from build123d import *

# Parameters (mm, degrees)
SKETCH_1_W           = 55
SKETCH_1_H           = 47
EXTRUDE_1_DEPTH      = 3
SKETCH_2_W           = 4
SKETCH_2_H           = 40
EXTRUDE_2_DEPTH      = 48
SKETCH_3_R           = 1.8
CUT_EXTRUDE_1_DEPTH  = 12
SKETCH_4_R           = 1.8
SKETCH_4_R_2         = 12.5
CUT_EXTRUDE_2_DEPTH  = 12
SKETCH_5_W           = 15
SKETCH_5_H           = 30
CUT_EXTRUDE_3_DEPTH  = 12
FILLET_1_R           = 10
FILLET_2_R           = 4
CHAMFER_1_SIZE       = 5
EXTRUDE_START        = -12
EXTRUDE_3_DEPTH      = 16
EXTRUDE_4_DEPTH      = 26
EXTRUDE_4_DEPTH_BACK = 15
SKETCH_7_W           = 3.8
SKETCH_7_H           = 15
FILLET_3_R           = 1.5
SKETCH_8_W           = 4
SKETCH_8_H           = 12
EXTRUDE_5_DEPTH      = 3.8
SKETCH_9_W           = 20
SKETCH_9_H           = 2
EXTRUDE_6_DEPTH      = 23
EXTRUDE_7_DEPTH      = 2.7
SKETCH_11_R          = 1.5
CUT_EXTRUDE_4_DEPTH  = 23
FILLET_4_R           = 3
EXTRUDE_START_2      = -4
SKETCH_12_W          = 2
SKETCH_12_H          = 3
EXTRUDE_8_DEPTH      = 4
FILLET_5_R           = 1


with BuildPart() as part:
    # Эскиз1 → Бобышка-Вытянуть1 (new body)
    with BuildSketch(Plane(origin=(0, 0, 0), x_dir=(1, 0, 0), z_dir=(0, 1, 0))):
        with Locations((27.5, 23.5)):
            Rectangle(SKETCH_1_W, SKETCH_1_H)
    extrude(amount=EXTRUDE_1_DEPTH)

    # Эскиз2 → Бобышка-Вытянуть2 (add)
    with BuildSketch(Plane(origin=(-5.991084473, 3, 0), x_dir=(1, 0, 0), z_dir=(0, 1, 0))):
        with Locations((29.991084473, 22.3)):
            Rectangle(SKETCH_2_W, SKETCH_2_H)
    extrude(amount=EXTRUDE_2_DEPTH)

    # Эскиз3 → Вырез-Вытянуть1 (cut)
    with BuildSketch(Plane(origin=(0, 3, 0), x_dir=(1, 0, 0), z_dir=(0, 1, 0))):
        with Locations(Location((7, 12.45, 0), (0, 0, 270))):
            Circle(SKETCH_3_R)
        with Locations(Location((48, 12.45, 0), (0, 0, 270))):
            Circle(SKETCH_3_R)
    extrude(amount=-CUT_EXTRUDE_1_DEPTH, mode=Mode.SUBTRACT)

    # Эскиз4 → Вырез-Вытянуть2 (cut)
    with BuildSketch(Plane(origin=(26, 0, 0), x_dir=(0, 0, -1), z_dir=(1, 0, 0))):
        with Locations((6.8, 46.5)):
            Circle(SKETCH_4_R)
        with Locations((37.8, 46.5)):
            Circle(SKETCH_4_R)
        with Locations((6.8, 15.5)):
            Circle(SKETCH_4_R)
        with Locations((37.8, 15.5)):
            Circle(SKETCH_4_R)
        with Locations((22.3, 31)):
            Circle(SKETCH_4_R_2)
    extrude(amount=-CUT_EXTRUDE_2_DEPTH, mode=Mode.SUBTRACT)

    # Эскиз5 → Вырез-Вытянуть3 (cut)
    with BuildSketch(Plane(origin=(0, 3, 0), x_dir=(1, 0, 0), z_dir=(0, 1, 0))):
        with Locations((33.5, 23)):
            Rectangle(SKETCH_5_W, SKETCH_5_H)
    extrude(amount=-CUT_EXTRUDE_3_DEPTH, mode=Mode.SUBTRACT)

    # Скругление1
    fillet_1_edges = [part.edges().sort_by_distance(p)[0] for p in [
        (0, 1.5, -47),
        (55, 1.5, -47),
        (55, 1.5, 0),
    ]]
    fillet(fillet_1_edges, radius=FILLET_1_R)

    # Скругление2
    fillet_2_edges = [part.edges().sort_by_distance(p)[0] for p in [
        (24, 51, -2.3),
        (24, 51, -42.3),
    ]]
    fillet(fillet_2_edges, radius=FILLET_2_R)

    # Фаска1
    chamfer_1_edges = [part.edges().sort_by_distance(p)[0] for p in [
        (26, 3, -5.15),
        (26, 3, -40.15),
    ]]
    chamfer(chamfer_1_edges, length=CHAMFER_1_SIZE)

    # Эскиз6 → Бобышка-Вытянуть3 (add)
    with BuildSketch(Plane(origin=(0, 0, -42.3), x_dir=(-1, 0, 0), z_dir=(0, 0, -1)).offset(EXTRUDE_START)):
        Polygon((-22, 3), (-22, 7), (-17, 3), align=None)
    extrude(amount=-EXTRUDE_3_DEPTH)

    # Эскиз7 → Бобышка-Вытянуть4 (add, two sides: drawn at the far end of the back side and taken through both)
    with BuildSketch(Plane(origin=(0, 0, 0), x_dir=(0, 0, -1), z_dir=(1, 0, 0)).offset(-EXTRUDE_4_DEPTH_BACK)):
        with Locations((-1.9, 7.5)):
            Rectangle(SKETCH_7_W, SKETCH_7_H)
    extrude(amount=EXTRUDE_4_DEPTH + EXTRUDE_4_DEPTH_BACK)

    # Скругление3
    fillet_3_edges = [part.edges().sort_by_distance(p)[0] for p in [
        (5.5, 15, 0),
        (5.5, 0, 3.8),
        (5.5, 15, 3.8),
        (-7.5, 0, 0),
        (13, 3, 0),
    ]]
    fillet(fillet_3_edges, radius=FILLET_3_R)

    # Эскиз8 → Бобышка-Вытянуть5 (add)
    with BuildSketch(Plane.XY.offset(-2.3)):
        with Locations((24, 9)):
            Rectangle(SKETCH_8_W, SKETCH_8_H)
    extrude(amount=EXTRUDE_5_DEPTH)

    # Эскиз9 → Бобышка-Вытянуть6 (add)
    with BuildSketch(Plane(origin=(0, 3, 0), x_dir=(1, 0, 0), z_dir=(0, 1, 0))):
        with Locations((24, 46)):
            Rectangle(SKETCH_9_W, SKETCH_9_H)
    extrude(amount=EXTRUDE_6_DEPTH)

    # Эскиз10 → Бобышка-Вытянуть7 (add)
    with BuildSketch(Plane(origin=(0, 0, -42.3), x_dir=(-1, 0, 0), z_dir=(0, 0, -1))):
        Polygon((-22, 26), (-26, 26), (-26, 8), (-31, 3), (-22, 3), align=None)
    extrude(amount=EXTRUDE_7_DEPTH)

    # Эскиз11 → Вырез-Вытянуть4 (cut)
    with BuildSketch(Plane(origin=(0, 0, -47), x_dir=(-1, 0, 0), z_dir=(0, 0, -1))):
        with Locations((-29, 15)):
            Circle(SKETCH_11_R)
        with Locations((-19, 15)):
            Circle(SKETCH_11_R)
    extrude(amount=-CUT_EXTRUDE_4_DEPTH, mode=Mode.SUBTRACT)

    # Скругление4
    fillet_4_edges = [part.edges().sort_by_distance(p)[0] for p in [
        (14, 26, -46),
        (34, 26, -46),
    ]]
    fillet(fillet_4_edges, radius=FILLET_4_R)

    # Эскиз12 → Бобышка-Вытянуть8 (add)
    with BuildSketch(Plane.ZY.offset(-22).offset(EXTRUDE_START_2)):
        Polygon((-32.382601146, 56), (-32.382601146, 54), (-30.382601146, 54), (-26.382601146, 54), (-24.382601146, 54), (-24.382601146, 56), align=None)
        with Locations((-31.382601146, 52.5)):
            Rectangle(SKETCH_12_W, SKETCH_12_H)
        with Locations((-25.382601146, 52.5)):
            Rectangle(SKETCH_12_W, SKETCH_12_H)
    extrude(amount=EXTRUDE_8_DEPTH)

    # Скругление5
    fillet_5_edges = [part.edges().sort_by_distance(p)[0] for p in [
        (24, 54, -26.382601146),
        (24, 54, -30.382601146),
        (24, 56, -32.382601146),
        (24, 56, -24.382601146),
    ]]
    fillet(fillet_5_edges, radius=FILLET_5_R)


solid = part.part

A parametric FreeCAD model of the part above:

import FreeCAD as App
import Part
import Sketcher


def edges_at(feature, points):
    """Names of the edges that pass closest to the given points."""
    edges = feature.Shape.Edges
    near = lambda p: min(range(len(edges)), key=lambda i: edges[i].distToShape(Part.Vertex(*p))[0])
    return sorted({f"Edge{near(p) + 1}" for p in points})


def add_polygon(sketch, points):
    """Adds a closed chain of lines whose ends are joined by coincident constraints."""
    first, n = sketch.GeometryCount, len(points)
    for a, b in zip(points, points[1:] + points[:1]):
        sketch.addGeometry(Part.LineSegment(App.Vector(*a, 0), App.Vector(*b, 0)), False)
    for i in range(n):
        sketch.addConstraint(Sketcher.Constraint("Coincident", first + i, 2, first + (i + 1) % n, 1))

doc = App.newDocument("Part")
body = doc.addObject("PartDesign::Body", "Body")

# Sketch on XZ plane
sketch1 = doc.addObject("Sketcher::SketchObject", "Sketch")
body.addObject(sketch1)
sketch1.AttachmentSupport = (doc.XZ_Plane, [""])
sketch1.MapMode = "FlatFace"
add_polygon(sketch1, [(0, -47), (0, 0), (55, 0), (55, -47)])  # lines 0-3
sketch1.addConstraint([
    Sketcher.Constraint("Vertical", 0),
    Sketcher.Constraint("Horizontal", 1),
    Sketcher.Constraint("Vertical", 2),
    Sketcher.Constraint("Horizontal", 3),
    Sketcher.Constraint("Coincident", 0, 2, -1, 1),
    Sketcher.Constraint("DistanceX", 1, 1, 1, 2, 55.0),
    Sketcher.Constraint("DistanceY", 0, 1, 0, 2, 47.0),
])
pad1 = doc.addObject("PartDesign::Pad", "Pad")
body.addObject(pad1)
pad1.Profile = sketch1
pad1.Length = 3
pad1.Reversed = True

# Sketch on XZ plane
sketch2 = doc.addObject("Sketcher::SketchObject", "Sketch001")
body.addObject(sketch2)
sketch2.AttachmentSupport = (doc.XZ_Plane, [""])
sketch2.MapMode = "FlatFace"
sketch2.AttachmentOffset = App.Placement(App.Vector(0, 0, -3), App.Rotation())
add_polygon(sketch2, [(22, -42.3), (22, -2.3), (26, -2.3), (26, -42.3)])  # lines 0-3
sketch2.addConstraint([
    Sketcher.Constraint("Vertical", 0),
    Sketcher.Constraint("Horizontal", 1),
    Sketcher.Constraint("Vertical", 2),
    Sketcher.Constraint("Horizontal", 3),
    Sketcher.Constraint("DistanceX", 1, 1, 1, 2, 4.0),
    Sketcher.Constraint("DistanceY", 0, 1, 0, 2, 40.0),
    Sketcher.Constraint("DistanceX", -1, 1, 0, 2, 22.0),
    Sketcher.Constraint("DistanceY", 0, 2, -1, 1, 2.3),
])
pad2 = doc.addObject("PartDesign::Pad", "Pad001")
body.addObject(pad2)
pad2.Profile = sketch2
pad2.Length = 48
pad2.Reversed = True

# Sketch on XZ plane
sketch3 = doc.addObject("Sketcher::SketchObject", "Sketch002")
body.addObject(sketch3)
sketch3.AttachmentSupport = (doc.XZ_Plane, [""])
sketch3.MapMode = "FlatFace"
sketch3.AttachmentOffset = App.Placement(App.Vector(0, 0, -3), App.Rotation())
sketch3.addGeometry([
    Part.Circle(App.Vector(7, -12.4, 0), App.Vector(0, 0, 1), 1.8),
    Part.Circle(App.Vector(48, -12.4, 0), App.Vector(0, 0, 1), 1.8),
], False)
sketch3.addConstraint([
    Sketcher.Constraint("Equal", 0, 1),
    Sketcher.Constraint("Horizontal", 0, 3, 1, 3),
    Sketcher.Constraint("Diameter", 0, 3.6),
    Sketcher.Constraint("DistanceX", -1, 1, 0, 3, 7.0),
    Sketcher.Constraint("DistanceX", -1, 1, 1, 3, 48.0),
    Sketcher.Constraint("DistanceY", 0, 3, -1, 1, 12.45),
])
pocket1 = doc.addObject("PartDesign::Pocket", "Pocket")
body.addObject(pocket1)
pocket1.Profile = sketch3
pocket1.Length = 12
pocket1.Reversed = True

# Sketch on YZ plane
sketch4 = doc.addObject("Sketcher::SketchObject", "Sketch003")
body.addObject(sketch4)
sketch4.AttachmentSupport = (doc.YZ_Plane, [""])
sketch4.MapMode = "FlatFace"
sketch4.AttachmentOffset = App.Placement(App.Vector(0, 0, 26), App.Rotation())
sketch4.addGeometry([
    Part.Circle(App.Vector(46.5, -6.8, 0), App.Vector(0, 0, 1), 1.8),  # 0
    Part.Circle(App.Vector(46.5, -37.8, 0), App.Vector(0, 0, 1), 1.8),  # 1
    Part.Circle(App.Vector(15.5, -6.8, 0), App.Vector(0, 0, 1), 1.8),  # 2
    Part.Circle(App.Vector(15.5, -37.8, 0), App.Vector(0, 0, 1), 1.8),  # 3
    Part.Circle(App.Vector(31, -22.3, 0), App.Vector(0, 0, 1), 12.5),  # 4
], False)
sketch4.addConstraint([
    Sketcher.Constraint("Equal", 0, 1),
    Sketcher.Constraint("Equal", 1, 2),
    Sketcher.Constraint("Equal", 2, 3),
    Sketcher.Constraint("Horizontal", 0, 3, 2, 3),
    Sketcher.Constraint("Horizontal", 1, 3, 3, 3),
    Sketcher.Constraint("Vertical", 0, 3, 1, 3),
    Sketcher.Constraint("Vertical", 2, 3, 3, 3),
    Sketcher.Constraint("Diameter", 4, 25.0),
    Sketcher.Constraint("Diameter", 0, 3.6),
    Sketcher.Constraint("DistanceX", -1, 1, 4, 3, 31.0),
    Sketcher.Constraint("DistanceY", 1, 3, 0, 3, 31.0),
    Sketcher.Constraint("DistanceX", 2, 3, 0, 3, 31.0),
    Sketcher.Constraint("DistanceX", -1, 1, 0, 3, 46.5),
    Sketcher.Constraint("DistanceY", 0, 3, -1, 1, 6.8),
    Sketcher.Constraint("DistanceY", 4, 3, -1, 1, 22.3),
])
pocket2 = doc.addObject("PartDesign::Pocket", "Pocket001")
body.addObject(pocket2)
pocket2.Profile = sketch4
pocket2.Length = 12

# Sketch on XZ plane
sketch5 = doc.addObject("Sketcher::SketchObject", "Sketch004")
body.addObject(sketch5)
sketch5.AttachmentSupport = (doc.XZ_Plane, [""])
sketch5.MapMode = "FlatFace"
sketch5.AttachmentOffset = App.Placement(App.Vector(0, 0, -3), App.Rotation())
add_polygon(sketch5, [(26, -38), (26, -8), (41, -8), (41, -38)])  # lines 0-3
sketch5.addConstraint([
    Sketcher.Constraint("Vertical", 0),
    Sketcher.Constraint("Horizontal", 1),
    Sketcher.Constraint("Vertical", 2),
    Sketcher.Constraint("Horizontal", 3),
    Sketcher.Constraint("DistanceX", 1, 1, 1, 2, 15.0),
    Sketcher.Constraint("DistanceY", 0, 1, 0, 2, 30.0),
    Sketcher.Constraint("DistanceX", -1, 1, 0, 2, 26.0),
    Sketcher.Constraint("DistanceY", 0, 2, -1, 1, 8.0),
])
pocket3 = doc.addObject("PartDesign::Pocket", "Pocket002")
body.addObject(pocket3)
pocket3.Profile = sketch5
pocket3.Length = 12
pocket3.Reversed = True
doc.recompute()

fillet = doc.addObject("PartDesign::Fillet", "Fillet")
body.addObject(fillet)
fillet.Base = (pocket3, edges_at(pocket3, [(0, 1.5, -47), (55, 1.5, -47), (55, 1.5, 0)]))
fillet.Radius = 10
doc.recompute()

fillet2 = doc.addObject("PartDesign::Fillet", "Fillet001")
body.addObject(fillet2)
fillet2.Base = (fillet, edges_at(fillet, [(24, 51, -2.3), (24, 51, -42.3)]))
fillet2.Radius = 4
doc.recompute()

chamfer = doc.addObject("PartDesign::Chamfer", "Chamfer")
body.addObject(chamfer)
chamfer.Base = (fillet2, edges_at(fillet2, [(26, 3, -5.15), (26, 3, -40.15)]))
chamfer.Size = 5

# Sketch on XY plane
sketch6 = doc.addObject("Sketcher::SketchObject", "Sketch005")
body.addObject(sketch6)
sketch6.AttachmentSupport = (doc.XY_Plane, [""])
sketch6.MapMode = "FlatFace"
sketch6.AttachmentOffset = App.Placement(App.Vector(0, 0, -30.3), App.Rotation())
add_polygon(sketch6, [(22, 7), (22, 3), (17, 3)])  # lines 0-2
sketch6.addConstraint([
    Sketcher.Constraint("Vertical", 0),
    Sketcher.Constraint("Horizontal", 1),
    Sketcher.Constraint("DistanceX", 1, 2, 1, 1, 5.0),
    Sketcher.Constraint("DistanceY", 0, 2, 0, 1, 4.0),
    Sketcher.Constraint("DistanceX", -1, 1, 0, 2, 22.0),
    Sketcher.Constraint("DistanceY", -1, 1, 0, 2, 3.0),
])
pad3 = doc.addObject("PartDesign::Pad", "Pad002")
body.addObject(pad3)
pad3.Profile = sketch6
pad3.Length = 16

# Sketch on YZ plane
sketch7 = doc.addObject("Sketcher::SketchObject", "Sketch006")
body.addObject(sketch7)
sketch7.AttachmentSupport = (doc.YZ_Plane, [""])
sketch7.MapMode = "FlatFace"
add_polygon(sketch7, [(15, 3.8), (0, 3.8), (0, 0), (15, 0)])  # lines 0-3
sketch7.addConstraint([
    Sketcher.Constraint("Horizontal", 0),
    Sketcher.Constraint("Vertical", 1),
    Sketcher.Constraint("Horizontal", 2),
    Sketcher.Constraint("Vertical", 3),
    Sketcher.Constraint("Coincident", 1, 2, -1, 1),
    Sketcher.Constraint("DistanceX", 0, 2, 0, 1, 15.0),
    Sketcher.Constraint("DistanceY", 1, 2, 1, 1, 3.8),
])
pad4 = doc.addObject("PartDesign::Pad", "Pad003")
body.addObject(pad4)
pad4.Profile = sketch7
pad4.Type = "TwoLengths"
pad4.Length = 26
pad4.Length2 = 15
doc.recompute()

fillet3 = doc.addObject("PartDesign::Fillet", "Fillet002")
body.addObject(fillet3)
fillet3.Base = (pad4, edges_at(pad4, [
    (5.5, 15, 0),
    (5.5, 0, 3.8),
    (5.5, 15, 3.8),
    (-7.5, 0, 0),
    (13, 3, 0),
]))
fillet3.Radius = 1.5

# Sketch on XY plane
sketch8 = doc.addObject("Sketcher::SketchObject", "Sketch007")
body.addObject(sketch8)
sketch8.AttachmentSupport = (doc.XY_Plane, [""])
sketch8.MapMode = "FlatFace"
sketch8.AttachmentOffset = App.Placement(App.Vector(0, 0, -2.3), App.Rotation())
add_polygon(sketch8, [(22, 15), (22, 3), (26, 3), (26, 15)])  # lines 0-3
sketch8.addConstraint([
    Sketcher.Constraint("Vertical", 0),
    Sketcher.Constraint("Horizontal", 1),
    Sketcher.Constraint("Vertical", 2),
    Sketcher.Constraint("Horizontal", 3),
    Sketcher.Constraint("DistanceX", 1, 1, 1, 2, 4.0),
    Sketcher.Constraint("DistanceY", 0, 2, 0, 1, 12.0),
    Sketcher.Constraint("DistanceX", -1, 1, 0, 2, 22.0),
    Sketcher.Constraint("DistanceY", -1, 1, 0, 2, 3.0),
])
pad5 = doc.addObject("PartDesign::Pad", "Pad004")
body.addObject(pad5)
pad5.Profile = sketch8
pad5.Length = 3.8

# Sketch on XZ plane
sketch9 = doc.addObject("Sketcher::SketchObject", "Sketch008")
body.addObject(sketch9)
sketch9.AttachmentSupport = (doc.XZ_Plane, [""])
sketch9.MapMode = "FlatFace"
sketch9.AttachmentOffset = App.Placement(App.Vector(0, 0, -3), App.Rotation())
add_polygon(sketch9, [(14, -47), (14, -45), (34, -45), (34, -47)])  # lines 0-3
sketch9.addConstraint([
    Sketcher.Constraint("Vertical", 0),
    Sketcher.Constraint("Horizontal", 1),
    Sketcher.Constraint("Vertical", 2),
    Sketcher.Constraint("Horizontal", 3),
    Sketcher.Constraint("DistanceX", 1, 1, 1, 2, 20.0),
    Sketcher.Constraint("DistanceY", 0, 1, 0, 2, 2.0),
    Sketcher.Constraint("DistanceX", -1, 1, 0, 2, 14.0),
    Sketcher.Constraint("DistanceY", 0, 2, -1, 1, 45.0),
])
pad6 = doc.addObject("PartDesign::Pad", "Pad005")
body.addObject(pad6)
pad6.Profile = sketch9
pad6.Length = 23
pad6.Reversed = True

# Sketch on XY plane
sketch10 = doc.addObject("Sketcher::SketchObject", "Sketch009")
body.addObject(sketch10)
sketch10.AttachmentSupport = (doc.XY_Plane, [""])
sketch10.MapMode = "FlatFace"
sketch10.AttachmentOffset = App.Placement(App.Vector(0, 0, -42.3), App.Rotation())
add_polygon(sketch10, [(22, 26), (26, 26), (26, 8), (31, 3), (22, 3)])  # lines 0-4
sketch10.addConstraint([
    Sketcher.Constraint("Horizontal", 0),
    Sketcher.Constraint("Vertical", 1),
    Sketcher.Constraint("Horizontal", 3),
    Sketcher.Constraint("Vertical", 4),
    Sketcher.Constraint("DistanceX", 0, 1, 0, 2, 4.0),
    Sketcher.Constraint("DistanceX", 3, 2, 3, 1, 9.0),
    Sketcher.Constraint("DistanceY", 1, 2, 1, 1, 18.0),
    Sketcher.Constraint("DistanceY", 4, 1, 4, 2, 23.0),
    Sketcher.Constraint("DistanceX", -1, 1, 0, 2, 26.0),
    Sketcher.Constraint("DistanceY", -1, 1, 0, 2, 26.0),
])
pad7 = doc.addObject("PartDesign::Pad", "Pad006")
body.addObject(pad7)
pad7.Profile = sketch10
pad7.Length = 2.7
pad7.Reversed = True

# Sketch on XY plane
sketch11 = doc.addObject("Sketcher::SketchObject", "Sketch010")
body.addObject(sketch11)
sketch11.AttachmentSupport = (doc.XY_Plane, [""])
sketch11.MapMode = "FlatFace"
sketch11.AttachmentOffset = App.Placement(App.Vector(0, 0, -47), App.Rotation())
sketch11.addGeometry([
    Part.Circle(App.Vector(29, 15, 0), App.Vector(0, 0, 1), 1.5),
    Part.Circle(App.Vector(19, 15, 0), App.Vector(0, 0, 1), 1.5),
], False)
sketch11.addConstraint([
    Sketcher.Constraint("Equal", 0, 1),
    Sketcher.Constraint("Horizontal", 0, 3, 1, 3),
    Sketcher.Constraint("Diameter", 0, 3.0),
    Sketcher.Constraint("DistanceX", -1, 1, 0, 3, 29.0),
    Sketcher.Constraint("DistanceY", -1, 1, 0, 3, 15.0),
    Sketcher.Constraint("DistanceX", -1, 1, 1, 3, 19.0),
])
pocket4 = doc.addObject("PartDesign::Pocket", "Pocket003")
body.addObject(pocket4)
pocket4.Profile = sketch11
pocket4.Length = 23
pocket4.Reversed = True
doc.recompute()

fillet4 = doc.addObject("PartDesign::Fillet", "Fillet003")
body.addObject(fillet4)
fillet4.Base = (pocket4, edges_at(pocket4, [(14, 26, -46), (34, 26, -46)]))
fillet4.Radius = 3

# Sketch on YZ plane
sketch12 = doc.addObject("Sketcher::SketchObject", "Sketch011")
body.addObject(sketch12)
sketch12.AttachmentSupport = (doc.YZ_Plane, [""])
sketch12.MapMode = "FlatFace"
sketch12.AttachmentOffset = App.Placement(App.Vector(0, 0, 26), App.Rotation())
add_polygon(sketch12, [(56, -32.4), (51, -32.4), (51, -30.4), (54, -30.4), (54, -26.4), (51, -26.4), (51, -24.4), (56, -24.4)])  # lines 0-7
sketch12.addConstraint([
    Sketcher.Constraint("Horizontal", 0),
    Sketcher.Constraint("Vertical", 1),
    Sketcher.Constraint("Horizontal", 2),
    Sketcher.Constraint("Vertical", 3),
    Sketcher.Constraint("Horizontal", 4),
    Sketcher.Constraint("Vertical", 5),
    Sketcher.Constraint("Horizontal", 6),
    Sketcher.Constraint("Vertical", 7),
    Sketcher.Constraint("Vertical", 1, 2, 4, 2),
    Sketcher.Constraint("Equal", 1, 5),
    Sketcher.Constraint("DistanceX", 0, 2, 0, 1, 5.0),
    Sketcher.Constraint("DistanceX", 2, 1, 2, 2, 3.0),
    Sketcher.Constraint("DistanceY", 1, 1, 1, 2, 2.0),
    Sketcher.Constraint("DistanceY", 3, 1, 3, 2, 4.0),
    Sketcher.Constraint("DistanceX", -1, 1, 0, 2, 51.0),
    Sketcher.Constraint("DistanceY", 0, 2, -1, 1, 32.382601),
])
pad8 = doc.addObject("PartDesign::Pad", "Pad007")
body.addObject(pad8)
pad8.Profile = sketch12
pad8.Length = 4
pad8.Reversed = True
doc.recompute()

fillet5 = doc.addObject("PartDesign::Fillet", "Fillet004")
body.addObject(fillet5)
fillet5.Base = (pad8, edges_at(pad8, [
    (24, 54, -26.383),
    (24, 54, -30.383),
    (24, 56, -32.383),
    (24, 56, -24.383),
]))
fillet5.Radius = 1

doc.recompute()
